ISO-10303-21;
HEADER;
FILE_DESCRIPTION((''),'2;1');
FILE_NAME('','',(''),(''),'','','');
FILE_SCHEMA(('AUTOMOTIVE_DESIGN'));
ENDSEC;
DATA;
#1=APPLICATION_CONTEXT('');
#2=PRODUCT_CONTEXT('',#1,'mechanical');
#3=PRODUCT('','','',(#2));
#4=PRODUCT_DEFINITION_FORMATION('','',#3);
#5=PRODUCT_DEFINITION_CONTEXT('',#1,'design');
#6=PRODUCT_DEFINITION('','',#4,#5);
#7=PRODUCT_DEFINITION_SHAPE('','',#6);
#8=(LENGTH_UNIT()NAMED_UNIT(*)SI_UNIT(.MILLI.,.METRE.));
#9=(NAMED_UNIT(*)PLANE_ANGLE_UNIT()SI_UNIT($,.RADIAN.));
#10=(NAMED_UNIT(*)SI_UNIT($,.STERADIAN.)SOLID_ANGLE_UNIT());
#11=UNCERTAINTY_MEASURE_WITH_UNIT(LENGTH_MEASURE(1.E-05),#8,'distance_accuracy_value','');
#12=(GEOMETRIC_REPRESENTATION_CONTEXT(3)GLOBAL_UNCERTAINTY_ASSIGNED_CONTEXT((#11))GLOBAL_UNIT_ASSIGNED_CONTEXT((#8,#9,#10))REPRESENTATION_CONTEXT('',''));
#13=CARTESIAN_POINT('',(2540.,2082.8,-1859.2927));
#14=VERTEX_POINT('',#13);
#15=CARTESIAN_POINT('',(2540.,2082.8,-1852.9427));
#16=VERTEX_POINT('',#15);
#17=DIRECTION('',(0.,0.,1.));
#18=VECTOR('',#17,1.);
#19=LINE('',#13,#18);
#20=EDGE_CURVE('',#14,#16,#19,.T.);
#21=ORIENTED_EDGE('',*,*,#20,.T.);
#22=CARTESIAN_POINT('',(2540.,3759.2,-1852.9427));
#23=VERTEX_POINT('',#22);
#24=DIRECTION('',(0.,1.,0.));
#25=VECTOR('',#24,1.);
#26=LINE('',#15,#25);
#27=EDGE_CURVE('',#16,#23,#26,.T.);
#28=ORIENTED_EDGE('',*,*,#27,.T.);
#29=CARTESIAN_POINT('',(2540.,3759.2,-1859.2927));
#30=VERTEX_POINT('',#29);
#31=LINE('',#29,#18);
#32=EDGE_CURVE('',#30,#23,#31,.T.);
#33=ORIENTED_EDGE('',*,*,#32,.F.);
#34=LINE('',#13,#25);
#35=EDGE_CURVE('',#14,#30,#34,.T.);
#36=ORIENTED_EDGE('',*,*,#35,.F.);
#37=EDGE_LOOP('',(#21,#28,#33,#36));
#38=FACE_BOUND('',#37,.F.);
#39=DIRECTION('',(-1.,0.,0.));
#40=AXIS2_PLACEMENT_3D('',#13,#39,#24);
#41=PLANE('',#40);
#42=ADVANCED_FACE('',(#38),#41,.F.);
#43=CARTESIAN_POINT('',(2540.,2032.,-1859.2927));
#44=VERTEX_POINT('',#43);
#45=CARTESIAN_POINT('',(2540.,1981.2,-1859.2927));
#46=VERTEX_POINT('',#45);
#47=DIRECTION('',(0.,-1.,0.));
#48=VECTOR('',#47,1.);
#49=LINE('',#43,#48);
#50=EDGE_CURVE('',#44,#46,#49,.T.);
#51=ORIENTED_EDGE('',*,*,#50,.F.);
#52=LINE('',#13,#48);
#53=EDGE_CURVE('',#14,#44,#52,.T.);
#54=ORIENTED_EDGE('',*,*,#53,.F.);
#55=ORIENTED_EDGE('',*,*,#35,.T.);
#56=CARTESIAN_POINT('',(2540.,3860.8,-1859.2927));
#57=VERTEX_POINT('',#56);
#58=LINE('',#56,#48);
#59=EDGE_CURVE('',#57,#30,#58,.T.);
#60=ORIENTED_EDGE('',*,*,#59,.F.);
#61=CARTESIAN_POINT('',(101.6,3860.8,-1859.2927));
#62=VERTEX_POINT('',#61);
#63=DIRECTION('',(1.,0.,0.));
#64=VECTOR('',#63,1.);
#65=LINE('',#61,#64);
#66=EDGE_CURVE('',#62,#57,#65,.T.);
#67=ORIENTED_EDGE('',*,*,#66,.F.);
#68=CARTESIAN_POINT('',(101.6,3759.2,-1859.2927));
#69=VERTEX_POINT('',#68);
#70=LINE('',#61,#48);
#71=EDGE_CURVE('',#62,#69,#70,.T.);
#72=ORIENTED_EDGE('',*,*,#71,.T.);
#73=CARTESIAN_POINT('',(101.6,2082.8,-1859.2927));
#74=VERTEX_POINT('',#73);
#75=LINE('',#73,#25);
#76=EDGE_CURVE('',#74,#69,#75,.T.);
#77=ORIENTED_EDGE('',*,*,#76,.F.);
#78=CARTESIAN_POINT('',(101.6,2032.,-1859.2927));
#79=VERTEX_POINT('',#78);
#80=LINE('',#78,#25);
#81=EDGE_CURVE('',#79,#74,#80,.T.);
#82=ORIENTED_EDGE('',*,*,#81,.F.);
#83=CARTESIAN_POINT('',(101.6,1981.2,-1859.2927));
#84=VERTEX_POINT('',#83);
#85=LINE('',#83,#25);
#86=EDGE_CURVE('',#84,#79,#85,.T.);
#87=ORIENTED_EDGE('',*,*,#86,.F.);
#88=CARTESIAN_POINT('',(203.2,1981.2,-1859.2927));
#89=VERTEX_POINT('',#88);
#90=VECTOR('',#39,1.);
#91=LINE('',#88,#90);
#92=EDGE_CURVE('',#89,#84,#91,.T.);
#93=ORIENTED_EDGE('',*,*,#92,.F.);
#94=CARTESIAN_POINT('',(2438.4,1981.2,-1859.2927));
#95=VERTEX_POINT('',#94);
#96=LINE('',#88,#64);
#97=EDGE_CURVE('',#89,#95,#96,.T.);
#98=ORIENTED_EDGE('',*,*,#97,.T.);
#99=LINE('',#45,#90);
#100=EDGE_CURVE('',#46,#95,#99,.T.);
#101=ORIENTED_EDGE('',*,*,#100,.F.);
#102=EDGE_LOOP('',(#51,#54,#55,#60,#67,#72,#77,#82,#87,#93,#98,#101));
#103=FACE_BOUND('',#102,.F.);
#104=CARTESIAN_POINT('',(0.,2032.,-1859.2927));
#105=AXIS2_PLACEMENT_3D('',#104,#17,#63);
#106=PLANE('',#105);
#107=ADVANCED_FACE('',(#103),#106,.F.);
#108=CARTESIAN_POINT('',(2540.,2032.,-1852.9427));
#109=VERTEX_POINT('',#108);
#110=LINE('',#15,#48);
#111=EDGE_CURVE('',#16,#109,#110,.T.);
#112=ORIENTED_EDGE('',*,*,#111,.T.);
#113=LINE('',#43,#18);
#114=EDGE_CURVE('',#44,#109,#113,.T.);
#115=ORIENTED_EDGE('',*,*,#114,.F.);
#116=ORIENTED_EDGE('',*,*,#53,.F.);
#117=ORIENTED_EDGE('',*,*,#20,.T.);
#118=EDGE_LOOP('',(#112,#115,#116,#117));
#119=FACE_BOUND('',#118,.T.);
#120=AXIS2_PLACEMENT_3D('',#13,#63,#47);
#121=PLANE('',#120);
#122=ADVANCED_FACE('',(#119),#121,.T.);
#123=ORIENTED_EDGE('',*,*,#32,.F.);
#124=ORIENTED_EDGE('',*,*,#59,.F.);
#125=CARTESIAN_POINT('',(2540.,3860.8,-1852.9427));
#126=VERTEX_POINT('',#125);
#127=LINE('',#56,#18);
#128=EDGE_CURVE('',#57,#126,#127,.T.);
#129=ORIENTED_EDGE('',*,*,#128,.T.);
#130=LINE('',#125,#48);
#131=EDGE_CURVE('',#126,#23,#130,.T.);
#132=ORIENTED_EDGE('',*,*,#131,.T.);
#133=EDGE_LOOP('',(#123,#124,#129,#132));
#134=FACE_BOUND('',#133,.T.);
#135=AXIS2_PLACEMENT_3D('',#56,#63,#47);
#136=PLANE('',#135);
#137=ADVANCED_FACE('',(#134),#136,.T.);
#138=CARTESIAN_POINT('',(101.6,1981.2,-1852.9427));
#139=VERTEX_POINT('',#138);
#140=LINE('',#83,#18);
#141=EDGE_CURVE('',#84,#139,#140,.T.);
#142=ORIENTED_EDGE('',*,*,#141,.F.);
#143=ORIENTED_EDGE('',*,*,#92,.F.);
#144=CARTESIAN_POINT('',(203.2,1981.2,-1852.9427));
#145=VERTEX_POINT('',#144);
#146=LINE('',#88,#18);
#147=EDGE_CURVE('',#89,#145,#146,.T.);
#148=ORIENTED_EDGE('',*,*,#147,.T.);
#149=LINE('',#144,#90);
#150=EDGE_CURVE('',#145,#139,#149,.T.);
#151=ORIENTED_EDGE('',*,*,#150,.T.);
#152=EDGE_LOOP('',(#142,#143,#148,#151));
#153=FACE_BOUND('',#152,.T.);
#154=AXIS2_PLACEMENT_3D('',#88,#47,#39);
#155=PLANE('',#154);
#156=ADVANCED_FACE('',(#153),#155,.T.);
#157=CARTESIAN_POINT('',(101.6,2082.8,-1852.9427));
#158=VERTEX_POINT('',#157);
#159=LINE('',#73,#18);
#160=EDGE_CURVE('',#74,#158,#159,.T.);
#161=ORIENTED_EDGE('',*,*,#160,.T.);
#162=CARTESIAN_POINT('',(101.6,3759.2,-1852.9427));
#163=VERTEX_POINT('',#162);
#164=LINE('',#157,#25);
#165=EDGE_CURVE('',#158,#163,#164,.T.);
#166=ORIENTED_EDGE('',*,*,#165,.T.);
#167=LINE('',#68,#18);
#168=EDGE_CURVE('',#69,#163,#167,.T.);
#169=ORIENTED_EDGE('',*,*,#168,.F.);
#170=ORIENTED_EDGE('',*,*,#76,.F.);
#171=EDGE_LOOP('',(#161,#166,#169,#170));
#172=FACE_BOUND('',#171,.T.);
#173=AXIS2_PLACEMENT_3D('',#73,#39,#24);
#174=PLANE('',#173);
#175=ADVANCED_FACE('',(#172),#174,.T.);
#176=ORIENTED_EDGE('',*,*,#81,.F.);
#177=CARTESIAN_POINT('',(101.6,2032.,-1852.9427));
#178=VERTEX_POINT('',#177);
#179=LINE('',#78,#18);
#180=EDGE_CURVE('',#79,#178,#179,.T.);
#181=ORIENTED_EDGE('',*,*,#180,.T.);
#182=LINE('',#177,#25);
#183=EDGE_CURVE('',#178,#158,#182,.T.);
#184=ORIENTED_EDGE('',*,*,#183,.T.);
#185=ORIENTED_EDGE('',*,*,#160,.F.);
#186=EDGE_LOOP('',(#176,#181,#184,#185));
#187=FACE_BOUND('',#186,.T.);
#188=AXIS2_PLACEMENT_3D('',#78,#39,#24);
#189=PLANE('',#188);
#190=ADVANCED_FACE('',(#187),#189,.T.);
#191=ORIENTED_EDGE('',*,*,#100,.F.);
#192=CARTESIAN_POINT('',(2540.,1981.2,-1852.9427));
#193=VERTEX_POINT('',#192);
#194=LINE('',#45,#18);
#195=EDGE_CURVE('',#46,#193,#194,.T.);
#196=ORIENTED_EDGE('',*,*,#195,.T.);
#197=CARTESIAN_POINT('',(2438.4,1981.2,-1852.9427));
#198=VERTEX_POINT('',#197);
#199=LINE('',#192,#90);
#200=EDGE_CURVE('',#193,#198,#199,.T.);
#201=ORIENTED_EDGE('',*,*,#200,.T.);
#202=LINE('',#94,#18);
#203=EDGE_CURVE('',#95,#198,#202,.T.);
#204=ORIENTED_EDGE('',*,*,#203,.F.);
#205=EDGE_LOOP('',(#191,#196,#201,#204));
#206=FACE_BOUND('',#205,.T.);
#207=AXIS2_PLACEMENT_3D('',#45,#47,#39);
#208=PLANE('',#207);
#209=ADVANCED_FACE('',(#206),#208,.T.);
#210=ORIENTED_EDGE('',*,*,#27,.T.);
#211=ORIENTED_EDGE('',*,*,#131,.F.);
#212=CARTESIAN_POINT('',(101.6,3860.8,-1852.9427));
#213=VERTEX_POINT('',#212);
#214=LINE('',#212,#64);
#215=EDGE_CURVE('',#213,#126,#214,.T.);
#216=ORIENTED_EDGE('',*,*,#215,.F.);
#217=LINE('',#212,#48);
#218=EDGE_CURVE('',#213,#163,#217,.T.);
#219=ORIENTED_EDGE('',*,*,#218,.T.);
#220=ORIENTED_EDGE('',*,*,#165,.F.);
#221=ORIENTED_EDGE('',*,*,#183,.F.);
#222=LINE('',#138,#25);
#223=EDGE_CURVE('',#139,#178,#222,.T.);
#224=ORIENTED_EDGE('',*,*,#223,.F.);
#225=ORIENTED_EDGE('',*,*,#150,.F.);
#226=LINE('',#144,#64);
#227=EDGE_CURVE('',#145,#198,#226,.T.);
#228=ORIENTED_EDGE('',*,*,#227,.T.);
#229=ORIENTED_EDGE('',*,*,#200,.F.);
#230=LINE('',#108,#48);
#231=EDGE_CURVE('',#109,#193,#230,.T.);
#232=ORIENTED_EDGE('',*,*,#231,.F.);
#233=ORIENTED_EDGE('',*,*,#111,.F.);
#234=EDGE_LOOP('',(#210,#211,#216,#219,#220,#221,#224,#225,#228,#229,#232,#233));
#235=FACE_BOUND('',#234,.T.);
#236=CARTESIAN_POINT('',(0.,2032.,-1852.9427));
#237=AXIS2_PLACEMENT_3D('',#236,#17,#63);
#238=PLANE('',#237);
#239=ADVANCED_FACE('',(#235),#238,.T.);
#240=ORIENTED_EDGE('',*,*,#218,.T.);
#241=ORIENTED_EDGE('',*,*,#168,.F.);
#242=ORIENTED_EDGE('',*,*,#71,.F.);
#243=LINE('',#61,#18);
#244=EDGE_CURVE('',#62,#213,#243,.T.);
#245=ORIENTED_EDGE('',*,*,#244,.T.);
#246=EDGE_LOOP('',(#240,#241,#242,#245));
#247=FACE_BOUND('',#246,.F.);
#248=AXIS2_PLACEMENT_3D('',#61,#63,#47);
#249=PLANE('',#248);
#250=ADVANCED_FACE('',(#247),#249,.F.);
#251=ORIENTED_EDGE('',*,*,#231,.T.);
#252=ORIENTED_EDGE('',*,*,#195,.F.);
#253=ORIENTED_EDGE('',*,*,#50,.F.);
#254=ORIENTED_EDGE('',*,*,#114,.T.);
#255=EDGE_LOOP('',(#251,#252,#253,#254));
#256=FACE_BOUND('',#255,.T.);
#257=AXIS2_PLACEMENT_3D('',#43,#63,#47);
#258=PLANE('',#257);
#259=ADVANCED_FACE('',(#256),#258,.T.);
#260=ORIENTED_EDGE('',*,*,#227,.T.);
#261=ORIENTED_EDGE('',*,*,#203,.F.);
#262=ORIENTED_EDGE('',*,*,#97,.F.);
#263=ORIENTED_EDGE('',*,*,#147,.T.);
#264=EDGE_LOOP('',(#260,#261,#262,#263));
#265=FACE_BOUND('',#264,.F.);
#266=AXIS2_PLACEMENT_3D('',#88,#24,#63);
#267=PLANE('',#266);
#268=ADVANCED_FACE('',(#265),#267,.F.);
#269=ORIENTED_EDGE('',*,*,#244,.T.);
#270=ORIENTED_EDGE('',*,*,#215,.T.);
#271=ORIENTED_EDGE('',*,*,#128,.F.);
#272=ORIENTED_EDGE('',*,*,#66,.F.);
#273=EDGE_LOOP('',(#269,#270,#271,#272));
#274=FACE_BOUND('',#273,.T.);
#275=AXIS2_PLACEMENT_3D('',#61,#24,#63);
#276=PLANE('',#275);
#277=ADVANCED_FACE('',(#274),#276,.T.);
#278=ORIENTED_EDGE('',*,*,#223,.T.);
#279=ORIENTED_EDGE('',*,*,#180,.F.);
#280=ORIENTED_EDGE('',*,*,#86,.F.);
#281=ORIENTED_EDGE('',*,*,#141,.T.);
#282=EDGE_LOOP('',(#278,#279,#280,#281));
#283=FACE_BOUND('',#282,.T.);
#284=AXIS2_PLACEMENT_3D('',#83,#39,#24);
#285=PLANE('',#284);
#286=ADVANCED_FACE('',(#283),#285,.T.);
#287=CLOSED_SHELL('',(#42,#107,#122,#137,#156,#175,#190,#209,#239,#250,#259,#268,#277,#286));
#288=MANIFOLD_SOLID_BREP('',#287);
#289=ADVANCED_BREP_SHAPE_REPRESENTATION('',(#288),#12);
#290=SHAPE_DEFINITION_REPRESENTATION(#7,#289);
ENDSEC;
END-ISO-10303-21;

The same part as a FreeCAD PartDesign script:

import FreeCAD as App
import Part
import Sketcher
Q = App.Units.Quantity


def add_polygon(sketch, points):
    """Adds a closed chain of lines whose ends are joined by coincident constraints."""
    first, n = sketch.GeometryCount, len(points)
    for a, b in zip(points, points[1:] + points[:1]):
        sketch.addGeometry(Part.LineSegment(App.Vector(*a, 0), App.Vector(*b, 0)), False)
    for i in range(n):
        sketch.addConstraint(Sketcher.Constraint("Coincident", first + i, 2, first + (i + 1) % n, 1))

doc = App.newDocument("Part")
params = doc.addObject("Spreadsheet::Sheet", "Params")
for row, (alias, value) in enumerate([
    ("sketch1_width", "96 in"),
    ("sketch1_height", "74 in"),
    ("pad1_length", "0.25 in"),
], start=1):
    params.set(f"A{row}", alias)
    params.set(f"B{row}", "=" + value)
    params.setAlias(f"B{row}", alias)

body = doc.addObject("PartDesign::Body", "Body")

sketch1 = body.newObject("Sketcher::SketchObject", "Sketch")
sketch1.AttachmentSupport = (doc.getObject("XY_Plane"), [""])
sketch1.MapMode = "FlatFace"
sketch1.AttachmentOffset = App.Placement(App.Vector(0, 0, -73.2005 * 25.4), App.Rotation())
add_polygon(sketch1, [(102, 1981), (2540, 1981), (2540, 3861), (102, 3861)])
sketch1.addConstraint(Sketcher.Constraint("Horizontal", 0))
sketch1.addConstraint(Sketcher.Constraint("Vertical", 1))
sketch1.addConstraint(Sketcher.Constraint("Horizontal", 2))
sketch1.addConstraint(Sketcher.Constraint("Vertical", 3))
sketch1.addConstraint(Sketcher.Constraint("DistanceX", 0, 1, 0, 2, Q("96 in")))
sketch1.addConstraint(Sketcher.Constraint("DistanceY", 1, 1, 1, 2, Q("74 in")))
sketch1.addConstraint(Sketcher.Constraint("DistanceX", -1, 1, 0, 2, Q("100 in")))
sketch1.addConstraint(Sketcher.Constraint("DistanceY", -1, 1, 0, 2, Q("78 in")))
sketch1.setExpression("Constraints[8]", "Params.sketch1_width")
sketch1.setExpression("Constraints[9]", "Params.sketch1_height")
pad1 = body.newObject("PartDesign::Pad", "Pad")
pad1.Profile = sketch1
pad1.setExpression("Length", "Params.pad1_length")

doc.recompute()
